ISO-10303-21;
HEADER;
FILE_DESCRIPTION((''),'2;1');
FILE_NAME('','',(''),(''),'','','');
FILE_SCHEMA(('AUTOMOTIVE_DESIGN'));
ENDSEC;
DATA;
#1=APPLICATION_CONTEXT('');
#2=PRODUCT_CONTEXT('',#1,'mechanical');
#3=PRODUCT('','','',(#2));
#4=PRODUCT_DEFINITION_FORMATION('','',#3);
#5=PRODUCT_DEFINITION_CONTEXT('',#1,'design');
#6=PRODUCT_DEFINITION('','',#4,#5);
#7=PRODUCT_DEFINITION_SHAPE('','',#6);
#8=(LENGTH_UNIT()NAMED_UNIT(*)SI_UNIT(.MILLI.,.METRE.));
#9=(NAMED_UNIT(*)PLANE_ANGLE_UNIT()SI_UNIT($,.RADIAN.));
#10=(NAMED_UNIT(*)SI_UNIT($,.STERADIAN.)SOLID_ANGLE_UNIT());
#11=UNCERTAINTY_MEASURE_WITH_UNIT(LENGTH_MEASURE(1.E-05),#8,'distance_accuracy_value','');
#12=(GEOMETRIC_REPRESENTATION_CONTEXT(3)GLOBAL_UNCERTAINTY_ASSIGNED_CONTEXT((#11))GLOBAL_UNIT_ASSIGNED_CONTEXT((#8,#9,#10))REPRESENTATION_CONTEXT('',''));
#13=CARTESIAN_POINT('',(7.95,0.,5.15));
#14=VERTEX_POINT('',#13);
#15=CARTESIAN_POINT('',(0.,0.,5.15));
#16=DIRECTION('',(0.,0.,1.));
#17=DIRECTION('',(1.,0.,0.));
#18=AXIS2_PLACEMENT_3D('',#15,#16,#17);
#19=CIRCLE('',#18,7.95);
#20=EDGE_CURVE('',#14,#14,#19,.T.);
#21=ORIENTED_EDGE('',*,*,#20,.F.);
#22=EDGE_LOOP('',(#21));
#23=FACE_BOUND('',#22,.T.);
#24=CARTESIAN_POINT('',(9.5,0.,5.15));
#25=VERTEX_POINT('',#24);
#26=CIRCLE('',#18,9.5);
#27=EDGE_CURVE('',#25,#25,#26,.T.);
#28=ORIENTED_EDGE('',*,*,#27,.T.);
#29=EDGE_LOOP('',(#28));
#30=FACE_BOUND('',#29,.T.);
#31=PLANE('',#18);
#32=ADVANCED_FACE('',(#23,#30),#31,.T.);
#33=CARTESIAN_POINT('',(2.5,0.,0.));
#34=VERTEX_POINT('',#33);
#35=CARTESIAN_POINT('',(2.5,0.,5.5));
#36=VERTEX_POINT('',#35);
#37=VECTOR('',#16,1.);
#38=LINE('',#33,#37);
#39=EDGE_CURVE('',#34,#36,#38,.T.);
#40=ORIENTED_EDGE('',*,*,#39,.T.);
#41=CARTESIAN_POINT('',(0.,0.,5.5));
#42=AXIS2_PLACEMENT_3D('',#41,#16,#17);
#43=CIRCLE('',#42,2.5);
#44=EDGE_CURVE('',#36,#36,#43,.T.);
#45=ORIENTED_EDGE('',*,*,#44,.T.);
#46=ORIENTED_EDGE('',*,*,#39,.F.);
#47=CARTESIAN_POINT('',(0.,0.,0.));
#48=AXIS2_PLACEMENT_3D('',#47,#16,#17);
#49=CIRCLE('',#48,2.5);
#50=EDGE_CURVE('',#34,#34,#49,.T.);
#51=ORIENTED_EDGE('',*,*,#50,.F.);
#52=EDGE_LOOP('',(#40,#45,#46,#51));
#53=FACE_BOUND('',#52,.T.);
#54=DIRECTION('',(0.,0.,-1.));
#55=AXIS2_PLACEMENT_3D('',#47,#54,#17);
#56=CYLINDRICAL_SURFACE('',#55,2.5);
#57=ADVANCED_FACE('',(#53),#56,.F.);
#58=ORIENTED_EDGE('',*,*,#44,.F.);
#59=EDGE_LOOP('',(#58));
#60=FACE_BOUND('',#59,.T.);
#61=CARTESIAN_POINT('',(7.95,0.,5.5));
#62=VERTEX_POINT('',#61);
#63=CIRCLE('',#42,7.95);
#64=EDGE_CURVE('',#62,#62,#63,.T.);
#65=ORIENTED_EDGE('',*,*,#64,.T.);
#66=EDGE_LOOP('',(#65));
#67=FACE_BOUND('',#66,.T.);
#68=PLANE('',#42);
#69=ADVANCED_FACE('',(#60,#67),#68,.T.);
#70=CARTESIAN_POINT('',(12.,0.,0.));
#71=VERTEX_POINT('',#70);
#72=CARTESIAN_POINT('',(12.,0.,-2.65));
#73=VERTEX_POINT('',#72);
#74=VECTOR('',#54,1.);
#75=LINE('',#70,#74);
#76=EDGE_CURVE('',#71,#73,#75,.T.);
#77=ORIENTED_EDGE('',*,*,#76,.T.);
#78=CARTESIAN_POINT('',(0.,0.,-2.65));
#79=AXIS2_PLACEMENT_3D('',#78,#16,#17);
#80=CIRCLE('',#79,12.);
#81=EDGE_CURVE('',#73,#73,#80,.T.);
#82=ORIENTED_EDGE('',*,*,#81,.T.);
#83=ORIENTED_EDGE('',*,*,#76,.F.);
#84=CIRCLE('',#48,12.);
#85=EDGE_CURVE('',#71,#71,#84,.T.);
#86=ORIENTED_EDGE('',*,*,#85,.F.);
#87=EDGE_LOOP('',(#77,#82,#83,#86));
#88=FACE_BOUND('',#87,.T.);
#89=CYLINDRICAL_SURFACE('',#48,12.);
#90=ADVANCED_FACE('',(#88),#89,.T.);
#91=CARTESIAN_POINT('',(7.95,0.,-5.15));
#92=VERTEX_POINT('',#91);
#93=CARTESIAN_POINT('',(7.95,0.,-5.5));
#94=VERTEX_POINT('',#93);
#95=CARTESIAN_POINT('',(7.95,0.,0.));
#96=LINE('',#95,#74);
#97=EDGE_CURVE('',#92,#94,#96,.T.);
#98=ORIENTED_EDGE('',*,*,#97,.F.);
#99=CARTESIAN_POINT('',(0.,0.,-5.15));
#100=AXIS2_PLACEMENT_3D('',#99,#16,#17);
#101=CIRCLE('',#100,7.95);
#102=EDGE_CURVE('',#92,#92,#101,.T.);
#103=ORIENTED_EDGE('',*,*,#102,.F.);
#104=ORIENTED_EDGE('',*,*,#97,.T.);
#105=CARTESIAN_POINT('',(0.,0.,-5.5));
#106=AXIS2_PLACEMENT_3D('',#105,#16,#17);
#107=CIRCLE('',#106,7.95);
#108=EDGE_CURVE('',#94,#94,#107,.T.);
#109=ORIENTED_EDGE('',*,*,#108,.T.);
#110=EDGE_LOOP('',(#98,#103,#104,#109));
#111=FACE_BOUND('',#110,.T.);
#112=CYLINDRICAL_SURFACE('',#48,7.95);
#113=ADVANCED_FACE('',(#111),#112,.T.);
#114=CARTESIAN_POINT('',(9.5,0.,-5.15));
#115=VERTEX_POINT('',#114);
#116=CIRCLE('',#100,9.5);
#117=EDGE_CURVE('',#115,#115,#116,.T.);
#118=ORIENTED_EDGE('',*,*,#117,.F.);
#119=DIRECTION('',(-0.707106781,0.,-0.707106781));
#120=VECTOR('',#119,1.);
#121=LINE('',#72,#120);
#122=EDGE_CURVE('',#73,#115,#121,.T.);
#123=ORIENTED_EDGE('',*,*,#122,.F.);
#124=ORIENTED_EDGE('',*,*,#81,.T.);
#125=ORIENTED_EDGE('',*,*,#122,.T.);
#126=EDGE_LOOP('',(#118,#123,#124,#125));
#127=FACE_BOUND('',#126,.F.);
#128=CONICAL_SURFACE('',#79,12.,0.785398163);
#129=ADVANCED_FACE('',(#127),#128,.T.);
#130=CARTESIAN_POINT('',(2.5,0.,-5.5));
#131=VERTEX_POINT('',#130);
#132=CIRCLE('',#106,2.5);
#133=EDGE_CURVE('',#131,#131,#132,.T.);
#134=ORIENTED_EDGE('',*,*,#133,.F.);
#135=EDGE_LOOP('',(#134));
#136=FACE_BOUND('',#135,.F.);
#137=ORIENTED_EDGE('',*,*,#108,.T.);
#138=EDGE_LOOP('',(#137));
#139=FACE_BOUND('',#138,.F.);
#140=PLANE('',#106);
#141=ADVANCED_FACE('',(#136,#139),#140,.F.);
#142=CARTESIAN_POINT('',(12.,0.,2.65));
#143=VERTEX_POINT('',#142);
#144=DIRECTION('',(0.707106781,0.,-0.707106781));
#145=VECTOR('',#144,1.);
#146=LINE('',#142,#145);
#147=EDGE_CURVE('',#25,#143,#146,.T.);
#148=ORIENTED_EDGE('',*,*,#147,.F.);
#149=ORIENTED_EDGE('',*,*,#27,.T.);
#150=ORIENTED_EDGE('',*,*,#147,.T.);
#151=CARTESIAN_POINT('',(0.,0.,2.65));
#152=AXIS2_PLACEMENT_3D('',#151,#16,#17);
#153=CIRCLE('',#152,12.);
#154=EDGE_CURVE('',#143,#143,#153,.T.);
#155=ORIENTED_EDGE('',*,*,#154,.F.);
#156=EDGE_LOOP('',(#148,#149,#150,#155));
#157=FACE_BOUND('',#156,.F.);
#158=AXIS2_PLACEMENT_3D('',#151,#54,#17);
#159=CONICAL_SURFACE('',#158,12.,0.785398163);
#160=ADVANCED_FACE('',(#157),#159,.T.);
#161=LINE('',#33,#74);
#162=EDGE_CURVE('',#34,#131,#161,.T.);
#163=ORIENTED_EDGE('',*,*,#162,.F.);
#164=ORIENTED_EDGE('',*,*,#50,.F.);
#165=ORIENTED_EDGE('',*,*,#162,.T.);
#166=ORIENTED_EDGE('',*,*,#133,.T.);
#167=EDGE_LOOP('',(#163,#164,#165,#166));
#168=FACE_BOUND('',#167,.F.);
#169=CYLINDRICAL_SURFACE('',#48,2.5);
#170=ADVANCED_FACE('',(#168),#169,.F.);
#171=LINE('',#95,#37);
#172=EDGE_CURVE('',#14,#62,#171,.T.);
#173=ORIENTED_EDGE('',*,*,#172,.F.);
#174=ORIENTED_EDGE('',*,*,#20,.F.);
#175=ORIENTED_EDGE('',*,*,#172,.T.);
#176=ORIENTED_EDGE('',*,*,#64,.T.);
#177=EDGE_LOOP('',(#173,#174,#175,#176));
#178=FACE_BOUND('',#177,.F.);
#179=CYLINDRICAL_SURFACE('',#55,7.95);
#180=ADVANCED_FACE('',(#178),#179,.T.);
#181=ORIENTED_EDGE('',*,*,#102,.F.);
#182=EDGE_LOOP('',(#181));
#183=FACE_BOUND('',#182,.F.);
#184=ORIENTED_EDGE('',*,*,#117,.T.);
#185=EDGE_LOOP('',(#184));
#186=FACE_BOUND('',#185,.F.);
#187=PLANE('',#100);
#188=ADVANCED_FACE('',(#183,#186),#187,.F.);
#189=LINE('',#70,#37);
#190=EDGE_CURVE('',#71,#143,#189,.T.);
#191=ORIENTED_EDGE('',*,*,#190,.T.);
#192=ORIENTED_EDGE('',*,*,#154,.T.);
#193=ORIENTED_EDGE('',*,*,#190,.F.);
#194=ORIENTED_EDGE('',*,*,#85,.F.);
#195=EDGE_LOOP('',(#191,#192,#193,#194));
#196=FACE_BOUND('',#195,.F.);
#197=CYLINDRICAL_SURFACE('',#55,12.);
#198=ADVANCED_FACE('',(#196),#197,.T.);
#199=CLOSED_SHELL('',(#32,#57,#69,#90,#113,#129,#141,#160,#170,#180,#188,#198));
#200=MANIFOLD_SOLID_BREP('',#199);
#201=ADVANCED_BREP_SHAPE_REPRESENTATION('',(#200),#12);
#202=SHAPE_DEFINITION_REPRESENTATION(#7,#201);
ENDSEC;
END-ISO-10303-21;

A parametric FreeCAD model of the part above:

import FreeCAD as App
import Part
import Sketcher
from FreeCAD import Vector
Q = App.Units.Quantity


def edges_at(feature, points):
    """Names of the edges that pass closest to the given points."""
    edges = feature.Shape.Edges
    near = lambda p: min(range(len(edges)), key=lambda i: edges[i].distToShape(Part.Vertex(*p))[0])
    return sorted({f"Edge{near(p) + 1}" for p in points})

doc = App.newDocument("Part")
body = doc.addObject("PartDesign::Body", "Body")

sketch1 = doc.addObject("Sketcher::SketchObject", "Sketch")
body.addObject(sketch1)
sketch1.AttachmentSupport = (doc.XY_Plane, [""])
sketch1.MapMode = "FlatFace"
sketch1.addGeometry([
    Part.Circle(Vector(0, 0, 0), Vector(0, 0, 1), 8),
    Part.Circle(Vector(0, 0, 0), Vector(0, 0, 1), 2.5),
], False)
sketch1.addConstraint([
    Sketcher.Constraint("Coincident", 0, 3, -1, 1),
    Sketcher.Constraint("Coincident", 1, 3, -1, 1),
    Sketcher.Constraint("Diameter", 1, Q("5 mm")),
    Sketcher.Constraint("Diameter", 0, Q("15.9 mm")),
])
pad1 = doc.addObject("PartDesign::Pad", "Pad")
body.addObject(pad1)
pad1.Profile = sketch1
pad1.Length = 11
pad1.Midplane = True

sketch2 = doc.addObject("Sketcher::SketchObject", "Sketch001")
body.addObject(sketch2)
sketch2.AttachmentSupport = (doc.XY_Plane, [""])
sketch2.MapMode = "FlatFace"
sketch2.addGeometry([
    Part.Circle(Vector(0, 0, 0), Vector(0, 0, 1), 12),
    Part.Circle(Vector(0, 0, 0), Vector(0, 0, 1), 8),
], False)
sketch2.addConstraint([
    Sketcher.Constraint("Coincident", 0, 3, -1, 1),
    Sketcher.Constraint("Coincident", 1, 3, -1, 1),
    Sketcher.Constraint("Diameter", 0, Q("24 mm")),
    Sketcher.Constraint("Diameter", 1, Q("15.9 mm")),
])
pad2 = doc.addObject("PartDesign::Pad", "Pad001")
body.addObject(pad2)
pad2.Profile = sketch2
pad2.Length = 10.3
pad2.Midplane = True
doc.recompute()

chamfer = doc.addObject("PartDesign::Chamfer", "Chamfer")
body.addObject(chamfer)
chamfer.Base = (pad2, edges_at(pad2, [(-12, 0, 5.15), (-12, 0, -5.15)]))
chamfer.Size = 2.5

doc.recompute()
